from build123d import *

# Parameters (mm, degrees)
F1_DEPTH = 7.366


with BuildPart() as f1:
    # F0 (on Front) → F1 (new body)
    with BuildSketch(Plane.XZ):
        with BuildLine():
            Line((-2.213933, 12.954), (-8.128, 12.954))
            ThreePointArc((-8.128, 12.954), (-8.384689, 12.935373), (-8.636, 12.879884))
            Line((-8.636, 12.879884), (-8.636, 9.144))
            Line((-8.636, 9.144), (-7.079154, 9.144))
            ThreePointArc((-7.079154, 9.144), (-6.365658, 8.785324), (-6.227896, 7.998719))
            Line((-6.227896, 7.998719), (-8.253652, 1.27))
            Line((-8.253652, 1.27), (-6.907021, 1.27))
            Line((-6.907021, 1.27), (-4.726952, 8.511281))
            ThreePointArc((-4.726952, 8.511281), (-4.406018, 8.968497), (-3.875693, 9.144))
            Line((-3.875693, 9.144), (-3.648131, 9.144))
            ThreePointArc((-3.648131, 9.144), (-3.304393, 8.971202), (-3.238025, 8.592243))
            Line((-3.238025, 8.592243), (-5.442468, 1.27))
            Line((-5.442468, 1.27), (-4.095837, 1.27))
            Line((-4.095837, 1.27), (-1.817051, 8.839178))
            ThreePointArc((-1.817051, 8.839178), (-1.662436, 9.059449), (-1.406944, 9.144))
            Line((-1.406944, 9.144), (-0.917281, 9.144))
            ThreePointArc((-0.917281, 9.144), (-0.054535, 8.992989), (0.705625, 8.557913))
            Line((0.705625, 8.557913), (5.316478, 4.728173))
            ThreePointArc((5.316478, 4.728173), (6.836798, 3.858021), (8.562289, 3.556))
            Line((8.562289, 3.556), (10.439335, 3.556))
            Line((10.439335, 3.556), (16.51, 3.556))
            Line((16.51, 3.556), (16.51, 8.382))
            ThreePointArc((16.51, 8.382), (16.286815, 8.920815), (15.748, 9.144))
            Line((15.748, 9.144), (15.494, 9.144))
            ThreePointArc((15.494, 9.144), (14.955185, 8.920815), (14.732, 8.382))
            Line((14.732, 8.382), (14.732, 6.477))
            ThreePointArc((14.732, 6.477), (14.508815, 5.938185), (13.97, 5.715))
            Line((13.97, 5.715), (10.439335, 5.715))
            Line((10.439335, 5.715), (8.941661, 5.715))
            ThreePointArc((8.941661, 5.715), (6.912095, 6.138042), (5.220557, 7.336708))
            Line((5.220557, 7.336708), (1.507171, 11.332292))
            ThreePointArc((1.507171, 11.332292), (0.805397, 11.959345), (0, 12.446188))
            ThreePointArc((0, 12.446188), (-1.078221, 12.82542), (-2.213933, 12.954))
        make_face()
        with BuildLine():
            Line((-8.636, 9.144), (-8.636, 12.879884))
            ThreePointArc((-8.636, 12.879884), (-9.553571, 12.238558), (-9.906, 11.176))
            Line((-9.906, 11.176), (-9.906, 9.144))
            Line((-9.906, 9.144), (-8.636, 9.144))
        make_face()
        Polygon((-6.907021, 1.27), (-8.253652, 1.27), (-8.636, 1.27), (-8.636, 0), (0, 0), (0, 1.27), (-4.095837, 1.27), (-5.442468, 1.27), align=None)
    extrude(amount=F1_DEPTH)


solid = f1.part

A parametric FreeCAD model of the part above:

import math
import FreeCAD as App
import Part
import Sketcher
from FreeCAD import Vector
Q = App.Units.Quantity

doc = App.newDocument("Part")
body = doc.addObject("PartDesign::Body", "Body")

sketch1 = body.newObject("Sketcher::SketchObject", "Sketch")
sketch1.AttachmentSupport = (doc.getObject("XZ_Plane"), [""])
sketch1.MapMode = "FlatFace"
sketch1.addGeometry([
    Part.LineSegment(Vector(-2.21, 12.95, 0), Vector(-8.13, 12.95, 0)),
    Part.ArcOfCircle(Part.Circle(Vector(-8.13, 11.18, 0), Vector(0, 0, 1), 1.78), math.radians(90), math.radians(106.6)),
    Part.ArcOfCircle(Part.Circle(Vector(-8.13, 11.18, 0), Vector(0, 0, 1), 1.78), math.radians(107), math.radians(180)),
    Part.LineSegment(Vector(-9.91, 11.18, 0), Vector(-9.91, 9.14, 0)),
    Part.LineSegment(Vector(-9.91, 9.14, 0), Vector(-7.08, 9.14, 0)),
    Part.ArcOfCircle(Part.Circle(Vector(-7.08, 8.25, 0), Vector(0, 0, 1), 0.89), math.radians(-17), math.radians(90)),
    Part.LineSegment(Vector(-6.23, 8, 0), Vector(-8.25, 1.27, 0)),
    Part.LineSegment(Vector(-8.25, 1.27, 0), Vector(-8.64, 1.27, 0)),
    Part.LineSegment(Vector(-8.64, 1.27, 0), Vector(-8.64, 0, 0)),
    Part.LineSegment(Vector(-8.64, 0, 0), Vector(0, 0, 0)),
    Part.LineSegment(Vector(0, 0, 0), Vector(0, 1.27, 0)),
    Part.LineSegment(Vector(0, 1.27, 0), Vector(-4.1, 1.27, 0)),
    Part.LineSegment(Vector(-4.1, 1.27, 0), Vector(-1.82, 8.84, 0)),
    Part.ArcOfCircle(Part.Circle(Vector(-1.41, 8.72, 0), Vector(0, 0, 1), 0.43), math.radians(90), math.radians(163)),
    Part.LineSegment(Vector(-1.41, 9.14, 0), Vector(-0.92, 9.14, 0)),
    Part.ArcOfCircle(Part.Circle(Vector(-0.92, 6.6, 0), Vector(0, 0, 1), 2.54), math.radians(50), math.radians(90)),
    Part.LineSegment(Vector(0.71, 8.56, 0), Vector(5.32, 4.73, 0)),
    Part.ArcOfCircle(Part.Circle(Vector(8.56, 8.64, 0), Vector(0, 0, 1), 5.08), math.radians(-130), math.radians(-90)),
    Part.LineSegment(Vector(8.56, 3.56, 0), Vector(16.51, 3.56, 0)),
    Part.LineSegment(Vector(16.51, 3.56, 0), Vector(16.51, 8.38, 0)),
    Part.ArcOfCircle(Part.Circle(Vector(15.75, 8.38, 0), Vector(0, 0, 1), 0.76), math.radians(0), math.radians(90)),
    Part.LineSegment(Vector(15.75, 9.14, 0), Vector(15.49, 9.14, 0)),
    Part.ArcOfCircle(Part.Circle(Vector(15.49, 8.38, 0), Vector(0, 0, 1), 0.76), math.radians(90), math.radians(180)),
    Part.LineSegment(Vector(14.73, 8.38, 0), Vector(14.73, 6.48, 0)),
    Part.ArcOfCircle(Part.Circle(Vector(13.97, 6.48, 0), Vector(0, 0, 1), 0.76), math.radians(-90), math.radians(0)),
    Part.LineSegment(Vector(13.97, 5.71, 0), Vector(8.94, 5.71, 0)),
    Part.ArcOfCircle(Part.Circle(Vector(8.94, 10.8, 0), Vector(0, 0, 1), 5.08), math.radians(-137), math.radians(-90)),
    Part.LineSegment(Vector(5.22, 7.34, 0), Vector(1.51, 11.33, 0)),
    Part.ArcOfCircle(Part.Circle(Vector(-2.21, 7.87, 0), Vector(0, 0, 1), 5.08), math.radians(43), math.radians(64)),
    Part.ArcOfCircle(Part.Circle(Vector(-2.21, 7.87, 0), Vector(0, 0, 1), 5.08), math.radians(64), math.radians(90)),
    Part.LineSegment(Vector(-6.91, 1.27, 0), Vector(-4.73, 8.51, 0)),
    Part.ArcOfCircle(Part.Circle(Vector(-3.88, 8.26, 0), Vector(0, 0, 1), 0.89), math.radians(90), math.radians(163)),
    Part.LineSegment(Vector(-3.88, 9.14, 0), Vector(-3.65, 9.14, 0)),
    Part.ArcOfCircle(Part.Circle(Vector(-3.65, 8.72, 0), Vector(0, 0, 1), 0.43), math.radians(-17), math.radians(90)),
    Part.LineSegment(Vector(-3.24, 8.59, 0), Vector(-5.44, 1.27, 0)),
    Part.LineSegment(Vector(-5.44, 1.27, 0), Vector(-6.91, 1.27, 0)),
], False)
sketch1.addConstraint([
    Sketcher.Constraint("Coincident", 0, 2, 1, 1),
    Sketcher.Constraint("Coincident", 1, 2, 2, 1),
    Sketcher.Constraint("Tangent", 2, 2, 3, 1),
    Sketcher.Constraint("Coincident", 3, 2, 4, 1),
    Sketcher.Constraint("Tangent", 4, 2, 5, 2),
    Sketcher.Constraint("Tangent", 5, 1, 6, 1),
    Sketcher.Constraint("Coincident", 6, 2, 7, 1),
    Sketcher.Constraint("Coincident", 7, 2, 8, 1),
    Sketcher.Constraint("Coincident", 8, 2, 9, 1),
    Sketcher.Constraint("Coincident", 9, 2, 10, 1),
    Sketcher.Constraint("Coincident", 10, 2, 11, 1),
    Sketcher.Constraint("Coincident", 11, 2, 12, 1),
    Sketcher.Constraint("Coincident", 12, 2, 13, 2),
    Sketcher.Constraint("Coincident", 13, 1, 14, 1),
    Sketcher.Constraint("Tangent", 14, 2, 15, 2),
    Sketcher.Constraint("Tangent", 15, 1, 16, 1),
    Sketcher.Constraint("Tangent", 16, 2, 17, 1),
    Sketcher.Constraint("Tangent", 17, 2, 18, 1),
    Sketcher.Constraint("Coincident", 18, 2, 19, 1),
    Sketcher.Constraint("Tangent", 19, 2, 20, 1),
    Sketcher.Constraint("Tangent", 20, 2, 21, 1),
    Sketcher.Constraint("Tangent", 21, 2, 22, 1),
    Sketcher.Constraint("Tangent", 22, 2, 23, 1),
    Sketcher.Constraint("Tangent", 23, 2, 24, 2),
    Sketcher.Constraint("Tangent", 24, 1, 25, 1),
    Sketcher.Constraint("Tangent", 25, 2, 26, 2),
    Sketcher.Constraint("Tangent", 26, 1, 27, 1),
    Sketcher.Constraint("Tangent", 27, 2, 28, 1),
    Sketcher.Constraint("Tangent", 28, 2, 29, 1),
    Sketcher.Constraint("Tangent", 29, 2, 0, 1),
    Sketcher.Constraint("Tangent", 30, 2, 31, 2),
    Sketcher.Constraint("Coincident", 31, 1, 32, 1),
    Sketcher.Constraint("Tangent", 32, 2, 33, 2),
    Sketcher.Constraint("Coincident", 33, 1, 34, 1),
    Sketcher.Constraint("Coincident", 34, 2, 35, 1),
    Sketcher.Constraint("Coincident", 35, 2, 30, 1),
    Sketcher.Constraint("Horizontal", 0),
    Sketcher.Constraint("Vertical", 3),
    Sketcher.Constraint("Horizontal", 4),
    Sketcher.Constraint("Horizontal", 7),
    Sketcher.Constraint("Vertical", 8),
    Sketcher.Constraint("Horizontal", 9),
    Sketcher.Constraint("Vertical", 10),
    Sketcher.Constraint("Horizontal", 11),
    Sketcher.Constraint("Horizontal", 14),
    Sketcher.Constraint("Horizontal", 18),
    Sketcher.Constraint("Vertical", 19),
    Sketcher.Constraint("Horizontal", 21),
    Sketcher.Constraint("Vertical", 23),
    Sketcher.Constraint("Horizontal", 25),
    Sketcher.Constraint("Horizontal", 32),
    Sketcher.Constraint("Horizontal", 35),
    Sketcher.Constraint("Coincident", 9, 2, -1, 1),
    Sketcher.Constraint("Equal", 20, 22),
    Sketcher.Constraint("Equal", 22, 24),
    Sketcher.Constraint("Equal", 17, 29),
    Sketcher.Constraint("Equal", 13, 33),
    Sketcher.Constraint("PointOnObject", 28, 2, -2),
    Sketcher.Constraint("Parallel", 6, 12),
    Sketcher.Constraint("Parallel", 12, 30),
    Sketcher.Constraint("Parallel", 30, 34),
    Sketcher.Constraint("Horizontal", 13, 3, 33, 3),
    Sketcher.Constraint("Horizontal", 7, 2, 10, 2),
    Sketcher.Constraint("Horizontal", 4, 2, 13, 1),
    Sketcher.Constraint("Horizontal", 14, 2, 20, 2),
    Sketcher.Constraint("Horizontal", 11, 2, 34, 2),
    Sketcher.Constraint("Vertical", 1, 2, 7, 2),
    Sketcher.Constraint("Radius", 15, Q("0.1000001 in")),
    Sketcher.Constraint("Radius", 17, Q("0.1999999 in")),
    Sketcher.Constraint("Radius", 26, Q("0.2000001 in")),
    Sketcher.Constraint("Radius", 2, Q("0.0700001 in")),
    Sketcher.Constraint("Radius", 20, Q("0.03 in")),
    Sketcher.Constraint("Radius", 5, Q("0.035 in")),
    Sketcher.Constraint("Radius", 31, Q("0.0349999 in")),
    Sketcher.Constraint("DistanceX", 9, 1, 9, 2, Q("0.34 in")),
    Sketcher.Constraint("DistanceX", 21, 2, 21, 1, Q("0.01 in")),
    Sketcher.Constraint("DistanceY", 3, 2, 3, 1, Q("0.08 in")),
    Sketcher.Constraint("DistanceY", 8, 2, 8, 1, Q("0.05 in")),
    Sketcher.Constraint("DistanceY", 19, 1, 19, 2, Q("0.19 in")),
    Sketcher.Constraint("DistanceY", 23, 2, 23, 1, Q("0.075 in")),
    Sketcher.Constraint("DistanceX", 2, 3, -1, 1, Q("0.3199999 in")),
    Sketcher.Constraint("DistanceY", -1, 1, 2, 3, Q("0.4399999 in")),
    Sketcher.Constraint("DistanceX", -1, 1, 20, 3, Q("0.62 in")),
    Sketcher.Constraint("DistanceY", -1, 1, 29, 3, Q("0.3100001 in")),
    Sketcher.Constraint("DistanceX", 0, 2, -1, 1, Q("0.32 in")),
    Sketcher.Constraint("Radius", 33, Q("0.428289 mm")),
    Sketcher.Constraint("Radius", 1, Q("1.778046 mm")),
    Sketcher.Constraint("Radius", 28, Q("5.080017 mm")),
    Sketcher.Constraint("DistanceX", 26, 1, 25, 2, Q("0.1465002 in")),
    Sketcher.Constraint("DistanceX", 18, 1, 18, 2, Q("7.947711 mm")),
    Sketcher.Constraint("DistanceX", 25, 2, 25, 1, Q("5.028339 mm")),
    Sketcher.Constraint("DistanceX", 28, 3, 13, 3, Q("0.806999 mm")),
    Sketcher.Constraint("DistanceX", 33, 3, 29, 3, Q("1.434199 mm")),
    Sketcher.Constraint("DistanceX", 5, 1, 31, 3, Q("2.352201 mm")),
    Sketcher.Constraint("DistanceX", 6, 2, 4, 2, Q("1.174498 mm")),
    Sketcher.Constraint("DistanceX", 28, 3, 13, 1, Q("0.807 mm")),
    Sketcher.Constraint("DistanceY", 15, 1, 13, 3, Q("0.157799 mm")),
    Sketcher.Constraint("DistanceX", 4, 1, 4, 2, Q("2.826846 mm")),
    Sketcher.Constraint("DistanceX", 32, 1, 32, 2, Q("0.227562 mm")),
    Sketcher.Constraint("DistanceX", 12, 2, -1, 1, Q("1.817051 mm")),
    Sketcher.Constraint("DistanceY", 33, 1, 33, 3, Q("0.123468 mm")),
])
pad1 = body.newObject("PartDesign::Pad", "Pad")
pad1.Profile = sketch1
pad1.Length = Q("0.29 in")

doc.recompute()
